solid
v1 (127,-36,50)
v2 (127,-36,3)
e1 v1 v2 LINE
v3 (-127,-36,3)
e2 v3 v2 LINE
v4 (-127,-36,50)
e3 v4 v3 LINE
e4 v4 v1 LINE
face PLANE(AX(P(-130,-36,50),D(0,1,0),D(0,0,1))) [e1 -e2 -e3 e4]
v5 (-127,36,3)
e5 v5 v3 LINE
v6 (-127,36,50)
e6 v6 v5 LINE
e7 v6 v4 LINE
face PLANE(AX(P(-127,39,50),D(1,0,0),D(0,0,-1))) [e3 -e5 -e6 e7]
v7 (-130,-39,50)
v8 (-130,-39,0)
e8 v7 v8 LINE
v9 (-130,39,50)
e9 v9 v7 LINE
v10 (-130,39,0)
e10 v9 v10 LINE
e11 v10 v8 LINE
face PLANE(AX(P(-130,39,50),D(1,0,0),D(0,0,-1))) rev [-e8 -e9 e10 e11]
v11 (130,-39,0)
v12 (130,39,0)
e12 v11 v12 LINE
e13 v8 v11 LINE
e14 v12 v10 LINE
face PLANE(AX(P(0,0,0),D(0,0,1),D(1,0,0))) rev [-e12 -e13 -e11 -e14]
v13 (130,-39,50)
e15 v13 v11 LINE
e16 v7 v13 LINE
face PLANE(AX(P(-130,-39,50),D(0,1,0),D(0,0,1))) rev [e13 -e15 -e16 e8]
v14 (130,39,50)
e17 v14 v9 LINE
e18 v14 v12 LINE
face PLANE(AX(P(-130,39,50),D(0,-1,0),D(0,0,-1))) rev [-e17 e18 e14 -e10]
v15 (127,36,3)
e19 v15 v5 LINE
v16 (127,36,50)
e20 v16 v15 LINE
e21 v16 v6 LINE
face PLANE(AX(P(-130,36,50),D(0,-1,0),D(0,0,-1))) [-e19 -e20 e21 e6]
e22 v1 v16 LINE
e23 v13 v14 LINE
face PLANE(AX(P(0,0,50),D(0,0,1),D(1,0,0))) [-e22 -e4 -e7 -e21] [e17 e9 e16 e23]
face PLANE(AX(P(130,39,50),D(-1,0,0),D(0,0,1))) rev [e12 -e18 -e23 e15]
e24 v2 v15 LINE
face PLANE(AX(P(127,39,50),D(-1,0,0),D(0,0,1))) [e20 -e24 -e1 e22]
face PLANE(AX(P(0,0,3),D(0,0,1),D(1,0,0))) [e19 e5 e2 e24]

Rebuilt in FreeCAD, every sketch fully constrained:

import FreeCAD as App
import Part
import Sketcher


def faces_at(feature, points):
    """Names of the faces that lie closest to the given points."""
    faces = feature.Shape.Faces
    near = lambda p: min(range(len(faces)), key=lambda i: faces[i].distToShape(Part.Vertex(*p))[0])
    return sorted({f"Face{near(p) + 1}" for p in points})


def add_polygon(sketch, points):
    """Adds a closed chain of lines whose ends are joined by coincident constraints."""
    first, n = sketch.GeometryCount, len(points)
    for a, b in zip(points, points[1:] + points[:1]):
        sketch.addGeometry(Part.LineSegment(App.Vector(*a, 0), App.Vector(*b, 0)), False)
    for i in range(n):
        sketch.addConstraint(Sketcher.Constraint("Coincident", first + i, 2, first + (i + 1) % n, 1))

doc = App.newDocument("Part")
params = doc.addObject("Spreadsheet::Sheet", "Params")
for row, (alias, value) in enumerate([
    ("sketch1_width", "260 mm"),
    ("sketch1_height", "78 mm"),
    ("pad1_length", "50 mm"),
    ("thickness_wall", "3 mm"),
], start=1):
    params.set(f"A{row}", alias)
    params.set(f"B{row}", "=" + value)
    params.setAlias(f"B{row}", alias)

body = doc.addObject("PartDesign::Body", "Body")

sketch1 = body.newObject("Sketcher::SketchObject", "Sketch")
sketch1.AttachmentSupport = (doc.getObject("XY_Plane"), [""])
sketch1.MapMode = "FlatFace"
add_polygon(sketch1, [(-130, 39), (-130, -39), (130, -39), (130, 39)])
sketch1.addConstraint([
    Sketcher.Constraint("Vertical", 0),
    Sketcher.Constraint("Horizontal", 1),
    Sketcher.Constraint("Vertical", 2),
    Sketcher.Constraint("Horizontal", 3),
    Sketcher.Constraint("Symmetric", 0, 2, 2, 2, -1, 1),
    Sketcher.Constraint("DistanceX", 1, 1, 1, 2, 260.0),
    Sketcher.Constraint("DistanceY", 0, 2, 0, 1, 78.0),
])
sketch1.setExpression("Constraints[9]", "Params.sketch1_width")
sketch1.setExpression("Constraints[10]", "Params.sketch1_height")
pad1 = body.newObject("PartDesign::Pad", "Pad")
pad1.Profile = sketch1
pad1.setExpression("Length", "Params.pad1_length")
doc.recompute()

thickness = body.newObject("PartDesign::Thickness", "Thickness")
thickness.Base = (pad1, faces_at(pad1, [(0, 0, 50)]))
thickness.setExpression("Value", "Params.thickness_wall")
thickness.Reversed = True
thickness.Join = "Intersection"

doc.recompute()
